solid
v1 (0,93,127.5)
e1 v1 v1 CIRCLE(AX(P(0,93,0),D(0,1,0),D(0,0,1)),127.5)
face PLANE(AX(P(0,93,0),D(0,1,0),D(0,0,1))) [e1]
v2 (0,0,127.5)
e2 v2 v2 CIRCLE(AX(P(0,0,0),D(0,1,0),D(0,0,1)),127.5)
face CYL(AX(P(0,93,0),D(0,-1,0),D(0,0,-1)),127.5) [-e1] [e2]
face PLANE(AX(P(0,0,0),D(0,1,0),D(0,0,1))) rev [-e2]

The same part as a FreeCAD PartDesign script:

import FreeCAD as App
import Part
import Sketcher

V = App.Vector
Q = App.Units.Quantity

doc = App.newDocument("Part")
body = doc.addObject("PartDesign::Body", "Body")

# Sketch on XZ plane
sketch1 = body.newObject("Sketcher::SketchObject", "Sketch")
sketch1.AttachmentSupport = (doc.getObject("XZ_Plane"), [""])
sketch1.MapMode = "FlatFace"
sketch1.addGeometry(Part.Circle(V(0, 0, 0), V(0, 0, 1), 128), False)
sketch1.addConstraint([
    Sketcher.Constraint("Coincident", 0, 3, -1, 1),
    Sketcher.Constraint("Diameter", 0, Q("255 mm")),
])
pad1 = body.newObject("PartDesign::Pad", "Pad")
pad1.Profile = sketch1
pad1.Length = 93
pad1.Reversed = True

doc.recompute()
